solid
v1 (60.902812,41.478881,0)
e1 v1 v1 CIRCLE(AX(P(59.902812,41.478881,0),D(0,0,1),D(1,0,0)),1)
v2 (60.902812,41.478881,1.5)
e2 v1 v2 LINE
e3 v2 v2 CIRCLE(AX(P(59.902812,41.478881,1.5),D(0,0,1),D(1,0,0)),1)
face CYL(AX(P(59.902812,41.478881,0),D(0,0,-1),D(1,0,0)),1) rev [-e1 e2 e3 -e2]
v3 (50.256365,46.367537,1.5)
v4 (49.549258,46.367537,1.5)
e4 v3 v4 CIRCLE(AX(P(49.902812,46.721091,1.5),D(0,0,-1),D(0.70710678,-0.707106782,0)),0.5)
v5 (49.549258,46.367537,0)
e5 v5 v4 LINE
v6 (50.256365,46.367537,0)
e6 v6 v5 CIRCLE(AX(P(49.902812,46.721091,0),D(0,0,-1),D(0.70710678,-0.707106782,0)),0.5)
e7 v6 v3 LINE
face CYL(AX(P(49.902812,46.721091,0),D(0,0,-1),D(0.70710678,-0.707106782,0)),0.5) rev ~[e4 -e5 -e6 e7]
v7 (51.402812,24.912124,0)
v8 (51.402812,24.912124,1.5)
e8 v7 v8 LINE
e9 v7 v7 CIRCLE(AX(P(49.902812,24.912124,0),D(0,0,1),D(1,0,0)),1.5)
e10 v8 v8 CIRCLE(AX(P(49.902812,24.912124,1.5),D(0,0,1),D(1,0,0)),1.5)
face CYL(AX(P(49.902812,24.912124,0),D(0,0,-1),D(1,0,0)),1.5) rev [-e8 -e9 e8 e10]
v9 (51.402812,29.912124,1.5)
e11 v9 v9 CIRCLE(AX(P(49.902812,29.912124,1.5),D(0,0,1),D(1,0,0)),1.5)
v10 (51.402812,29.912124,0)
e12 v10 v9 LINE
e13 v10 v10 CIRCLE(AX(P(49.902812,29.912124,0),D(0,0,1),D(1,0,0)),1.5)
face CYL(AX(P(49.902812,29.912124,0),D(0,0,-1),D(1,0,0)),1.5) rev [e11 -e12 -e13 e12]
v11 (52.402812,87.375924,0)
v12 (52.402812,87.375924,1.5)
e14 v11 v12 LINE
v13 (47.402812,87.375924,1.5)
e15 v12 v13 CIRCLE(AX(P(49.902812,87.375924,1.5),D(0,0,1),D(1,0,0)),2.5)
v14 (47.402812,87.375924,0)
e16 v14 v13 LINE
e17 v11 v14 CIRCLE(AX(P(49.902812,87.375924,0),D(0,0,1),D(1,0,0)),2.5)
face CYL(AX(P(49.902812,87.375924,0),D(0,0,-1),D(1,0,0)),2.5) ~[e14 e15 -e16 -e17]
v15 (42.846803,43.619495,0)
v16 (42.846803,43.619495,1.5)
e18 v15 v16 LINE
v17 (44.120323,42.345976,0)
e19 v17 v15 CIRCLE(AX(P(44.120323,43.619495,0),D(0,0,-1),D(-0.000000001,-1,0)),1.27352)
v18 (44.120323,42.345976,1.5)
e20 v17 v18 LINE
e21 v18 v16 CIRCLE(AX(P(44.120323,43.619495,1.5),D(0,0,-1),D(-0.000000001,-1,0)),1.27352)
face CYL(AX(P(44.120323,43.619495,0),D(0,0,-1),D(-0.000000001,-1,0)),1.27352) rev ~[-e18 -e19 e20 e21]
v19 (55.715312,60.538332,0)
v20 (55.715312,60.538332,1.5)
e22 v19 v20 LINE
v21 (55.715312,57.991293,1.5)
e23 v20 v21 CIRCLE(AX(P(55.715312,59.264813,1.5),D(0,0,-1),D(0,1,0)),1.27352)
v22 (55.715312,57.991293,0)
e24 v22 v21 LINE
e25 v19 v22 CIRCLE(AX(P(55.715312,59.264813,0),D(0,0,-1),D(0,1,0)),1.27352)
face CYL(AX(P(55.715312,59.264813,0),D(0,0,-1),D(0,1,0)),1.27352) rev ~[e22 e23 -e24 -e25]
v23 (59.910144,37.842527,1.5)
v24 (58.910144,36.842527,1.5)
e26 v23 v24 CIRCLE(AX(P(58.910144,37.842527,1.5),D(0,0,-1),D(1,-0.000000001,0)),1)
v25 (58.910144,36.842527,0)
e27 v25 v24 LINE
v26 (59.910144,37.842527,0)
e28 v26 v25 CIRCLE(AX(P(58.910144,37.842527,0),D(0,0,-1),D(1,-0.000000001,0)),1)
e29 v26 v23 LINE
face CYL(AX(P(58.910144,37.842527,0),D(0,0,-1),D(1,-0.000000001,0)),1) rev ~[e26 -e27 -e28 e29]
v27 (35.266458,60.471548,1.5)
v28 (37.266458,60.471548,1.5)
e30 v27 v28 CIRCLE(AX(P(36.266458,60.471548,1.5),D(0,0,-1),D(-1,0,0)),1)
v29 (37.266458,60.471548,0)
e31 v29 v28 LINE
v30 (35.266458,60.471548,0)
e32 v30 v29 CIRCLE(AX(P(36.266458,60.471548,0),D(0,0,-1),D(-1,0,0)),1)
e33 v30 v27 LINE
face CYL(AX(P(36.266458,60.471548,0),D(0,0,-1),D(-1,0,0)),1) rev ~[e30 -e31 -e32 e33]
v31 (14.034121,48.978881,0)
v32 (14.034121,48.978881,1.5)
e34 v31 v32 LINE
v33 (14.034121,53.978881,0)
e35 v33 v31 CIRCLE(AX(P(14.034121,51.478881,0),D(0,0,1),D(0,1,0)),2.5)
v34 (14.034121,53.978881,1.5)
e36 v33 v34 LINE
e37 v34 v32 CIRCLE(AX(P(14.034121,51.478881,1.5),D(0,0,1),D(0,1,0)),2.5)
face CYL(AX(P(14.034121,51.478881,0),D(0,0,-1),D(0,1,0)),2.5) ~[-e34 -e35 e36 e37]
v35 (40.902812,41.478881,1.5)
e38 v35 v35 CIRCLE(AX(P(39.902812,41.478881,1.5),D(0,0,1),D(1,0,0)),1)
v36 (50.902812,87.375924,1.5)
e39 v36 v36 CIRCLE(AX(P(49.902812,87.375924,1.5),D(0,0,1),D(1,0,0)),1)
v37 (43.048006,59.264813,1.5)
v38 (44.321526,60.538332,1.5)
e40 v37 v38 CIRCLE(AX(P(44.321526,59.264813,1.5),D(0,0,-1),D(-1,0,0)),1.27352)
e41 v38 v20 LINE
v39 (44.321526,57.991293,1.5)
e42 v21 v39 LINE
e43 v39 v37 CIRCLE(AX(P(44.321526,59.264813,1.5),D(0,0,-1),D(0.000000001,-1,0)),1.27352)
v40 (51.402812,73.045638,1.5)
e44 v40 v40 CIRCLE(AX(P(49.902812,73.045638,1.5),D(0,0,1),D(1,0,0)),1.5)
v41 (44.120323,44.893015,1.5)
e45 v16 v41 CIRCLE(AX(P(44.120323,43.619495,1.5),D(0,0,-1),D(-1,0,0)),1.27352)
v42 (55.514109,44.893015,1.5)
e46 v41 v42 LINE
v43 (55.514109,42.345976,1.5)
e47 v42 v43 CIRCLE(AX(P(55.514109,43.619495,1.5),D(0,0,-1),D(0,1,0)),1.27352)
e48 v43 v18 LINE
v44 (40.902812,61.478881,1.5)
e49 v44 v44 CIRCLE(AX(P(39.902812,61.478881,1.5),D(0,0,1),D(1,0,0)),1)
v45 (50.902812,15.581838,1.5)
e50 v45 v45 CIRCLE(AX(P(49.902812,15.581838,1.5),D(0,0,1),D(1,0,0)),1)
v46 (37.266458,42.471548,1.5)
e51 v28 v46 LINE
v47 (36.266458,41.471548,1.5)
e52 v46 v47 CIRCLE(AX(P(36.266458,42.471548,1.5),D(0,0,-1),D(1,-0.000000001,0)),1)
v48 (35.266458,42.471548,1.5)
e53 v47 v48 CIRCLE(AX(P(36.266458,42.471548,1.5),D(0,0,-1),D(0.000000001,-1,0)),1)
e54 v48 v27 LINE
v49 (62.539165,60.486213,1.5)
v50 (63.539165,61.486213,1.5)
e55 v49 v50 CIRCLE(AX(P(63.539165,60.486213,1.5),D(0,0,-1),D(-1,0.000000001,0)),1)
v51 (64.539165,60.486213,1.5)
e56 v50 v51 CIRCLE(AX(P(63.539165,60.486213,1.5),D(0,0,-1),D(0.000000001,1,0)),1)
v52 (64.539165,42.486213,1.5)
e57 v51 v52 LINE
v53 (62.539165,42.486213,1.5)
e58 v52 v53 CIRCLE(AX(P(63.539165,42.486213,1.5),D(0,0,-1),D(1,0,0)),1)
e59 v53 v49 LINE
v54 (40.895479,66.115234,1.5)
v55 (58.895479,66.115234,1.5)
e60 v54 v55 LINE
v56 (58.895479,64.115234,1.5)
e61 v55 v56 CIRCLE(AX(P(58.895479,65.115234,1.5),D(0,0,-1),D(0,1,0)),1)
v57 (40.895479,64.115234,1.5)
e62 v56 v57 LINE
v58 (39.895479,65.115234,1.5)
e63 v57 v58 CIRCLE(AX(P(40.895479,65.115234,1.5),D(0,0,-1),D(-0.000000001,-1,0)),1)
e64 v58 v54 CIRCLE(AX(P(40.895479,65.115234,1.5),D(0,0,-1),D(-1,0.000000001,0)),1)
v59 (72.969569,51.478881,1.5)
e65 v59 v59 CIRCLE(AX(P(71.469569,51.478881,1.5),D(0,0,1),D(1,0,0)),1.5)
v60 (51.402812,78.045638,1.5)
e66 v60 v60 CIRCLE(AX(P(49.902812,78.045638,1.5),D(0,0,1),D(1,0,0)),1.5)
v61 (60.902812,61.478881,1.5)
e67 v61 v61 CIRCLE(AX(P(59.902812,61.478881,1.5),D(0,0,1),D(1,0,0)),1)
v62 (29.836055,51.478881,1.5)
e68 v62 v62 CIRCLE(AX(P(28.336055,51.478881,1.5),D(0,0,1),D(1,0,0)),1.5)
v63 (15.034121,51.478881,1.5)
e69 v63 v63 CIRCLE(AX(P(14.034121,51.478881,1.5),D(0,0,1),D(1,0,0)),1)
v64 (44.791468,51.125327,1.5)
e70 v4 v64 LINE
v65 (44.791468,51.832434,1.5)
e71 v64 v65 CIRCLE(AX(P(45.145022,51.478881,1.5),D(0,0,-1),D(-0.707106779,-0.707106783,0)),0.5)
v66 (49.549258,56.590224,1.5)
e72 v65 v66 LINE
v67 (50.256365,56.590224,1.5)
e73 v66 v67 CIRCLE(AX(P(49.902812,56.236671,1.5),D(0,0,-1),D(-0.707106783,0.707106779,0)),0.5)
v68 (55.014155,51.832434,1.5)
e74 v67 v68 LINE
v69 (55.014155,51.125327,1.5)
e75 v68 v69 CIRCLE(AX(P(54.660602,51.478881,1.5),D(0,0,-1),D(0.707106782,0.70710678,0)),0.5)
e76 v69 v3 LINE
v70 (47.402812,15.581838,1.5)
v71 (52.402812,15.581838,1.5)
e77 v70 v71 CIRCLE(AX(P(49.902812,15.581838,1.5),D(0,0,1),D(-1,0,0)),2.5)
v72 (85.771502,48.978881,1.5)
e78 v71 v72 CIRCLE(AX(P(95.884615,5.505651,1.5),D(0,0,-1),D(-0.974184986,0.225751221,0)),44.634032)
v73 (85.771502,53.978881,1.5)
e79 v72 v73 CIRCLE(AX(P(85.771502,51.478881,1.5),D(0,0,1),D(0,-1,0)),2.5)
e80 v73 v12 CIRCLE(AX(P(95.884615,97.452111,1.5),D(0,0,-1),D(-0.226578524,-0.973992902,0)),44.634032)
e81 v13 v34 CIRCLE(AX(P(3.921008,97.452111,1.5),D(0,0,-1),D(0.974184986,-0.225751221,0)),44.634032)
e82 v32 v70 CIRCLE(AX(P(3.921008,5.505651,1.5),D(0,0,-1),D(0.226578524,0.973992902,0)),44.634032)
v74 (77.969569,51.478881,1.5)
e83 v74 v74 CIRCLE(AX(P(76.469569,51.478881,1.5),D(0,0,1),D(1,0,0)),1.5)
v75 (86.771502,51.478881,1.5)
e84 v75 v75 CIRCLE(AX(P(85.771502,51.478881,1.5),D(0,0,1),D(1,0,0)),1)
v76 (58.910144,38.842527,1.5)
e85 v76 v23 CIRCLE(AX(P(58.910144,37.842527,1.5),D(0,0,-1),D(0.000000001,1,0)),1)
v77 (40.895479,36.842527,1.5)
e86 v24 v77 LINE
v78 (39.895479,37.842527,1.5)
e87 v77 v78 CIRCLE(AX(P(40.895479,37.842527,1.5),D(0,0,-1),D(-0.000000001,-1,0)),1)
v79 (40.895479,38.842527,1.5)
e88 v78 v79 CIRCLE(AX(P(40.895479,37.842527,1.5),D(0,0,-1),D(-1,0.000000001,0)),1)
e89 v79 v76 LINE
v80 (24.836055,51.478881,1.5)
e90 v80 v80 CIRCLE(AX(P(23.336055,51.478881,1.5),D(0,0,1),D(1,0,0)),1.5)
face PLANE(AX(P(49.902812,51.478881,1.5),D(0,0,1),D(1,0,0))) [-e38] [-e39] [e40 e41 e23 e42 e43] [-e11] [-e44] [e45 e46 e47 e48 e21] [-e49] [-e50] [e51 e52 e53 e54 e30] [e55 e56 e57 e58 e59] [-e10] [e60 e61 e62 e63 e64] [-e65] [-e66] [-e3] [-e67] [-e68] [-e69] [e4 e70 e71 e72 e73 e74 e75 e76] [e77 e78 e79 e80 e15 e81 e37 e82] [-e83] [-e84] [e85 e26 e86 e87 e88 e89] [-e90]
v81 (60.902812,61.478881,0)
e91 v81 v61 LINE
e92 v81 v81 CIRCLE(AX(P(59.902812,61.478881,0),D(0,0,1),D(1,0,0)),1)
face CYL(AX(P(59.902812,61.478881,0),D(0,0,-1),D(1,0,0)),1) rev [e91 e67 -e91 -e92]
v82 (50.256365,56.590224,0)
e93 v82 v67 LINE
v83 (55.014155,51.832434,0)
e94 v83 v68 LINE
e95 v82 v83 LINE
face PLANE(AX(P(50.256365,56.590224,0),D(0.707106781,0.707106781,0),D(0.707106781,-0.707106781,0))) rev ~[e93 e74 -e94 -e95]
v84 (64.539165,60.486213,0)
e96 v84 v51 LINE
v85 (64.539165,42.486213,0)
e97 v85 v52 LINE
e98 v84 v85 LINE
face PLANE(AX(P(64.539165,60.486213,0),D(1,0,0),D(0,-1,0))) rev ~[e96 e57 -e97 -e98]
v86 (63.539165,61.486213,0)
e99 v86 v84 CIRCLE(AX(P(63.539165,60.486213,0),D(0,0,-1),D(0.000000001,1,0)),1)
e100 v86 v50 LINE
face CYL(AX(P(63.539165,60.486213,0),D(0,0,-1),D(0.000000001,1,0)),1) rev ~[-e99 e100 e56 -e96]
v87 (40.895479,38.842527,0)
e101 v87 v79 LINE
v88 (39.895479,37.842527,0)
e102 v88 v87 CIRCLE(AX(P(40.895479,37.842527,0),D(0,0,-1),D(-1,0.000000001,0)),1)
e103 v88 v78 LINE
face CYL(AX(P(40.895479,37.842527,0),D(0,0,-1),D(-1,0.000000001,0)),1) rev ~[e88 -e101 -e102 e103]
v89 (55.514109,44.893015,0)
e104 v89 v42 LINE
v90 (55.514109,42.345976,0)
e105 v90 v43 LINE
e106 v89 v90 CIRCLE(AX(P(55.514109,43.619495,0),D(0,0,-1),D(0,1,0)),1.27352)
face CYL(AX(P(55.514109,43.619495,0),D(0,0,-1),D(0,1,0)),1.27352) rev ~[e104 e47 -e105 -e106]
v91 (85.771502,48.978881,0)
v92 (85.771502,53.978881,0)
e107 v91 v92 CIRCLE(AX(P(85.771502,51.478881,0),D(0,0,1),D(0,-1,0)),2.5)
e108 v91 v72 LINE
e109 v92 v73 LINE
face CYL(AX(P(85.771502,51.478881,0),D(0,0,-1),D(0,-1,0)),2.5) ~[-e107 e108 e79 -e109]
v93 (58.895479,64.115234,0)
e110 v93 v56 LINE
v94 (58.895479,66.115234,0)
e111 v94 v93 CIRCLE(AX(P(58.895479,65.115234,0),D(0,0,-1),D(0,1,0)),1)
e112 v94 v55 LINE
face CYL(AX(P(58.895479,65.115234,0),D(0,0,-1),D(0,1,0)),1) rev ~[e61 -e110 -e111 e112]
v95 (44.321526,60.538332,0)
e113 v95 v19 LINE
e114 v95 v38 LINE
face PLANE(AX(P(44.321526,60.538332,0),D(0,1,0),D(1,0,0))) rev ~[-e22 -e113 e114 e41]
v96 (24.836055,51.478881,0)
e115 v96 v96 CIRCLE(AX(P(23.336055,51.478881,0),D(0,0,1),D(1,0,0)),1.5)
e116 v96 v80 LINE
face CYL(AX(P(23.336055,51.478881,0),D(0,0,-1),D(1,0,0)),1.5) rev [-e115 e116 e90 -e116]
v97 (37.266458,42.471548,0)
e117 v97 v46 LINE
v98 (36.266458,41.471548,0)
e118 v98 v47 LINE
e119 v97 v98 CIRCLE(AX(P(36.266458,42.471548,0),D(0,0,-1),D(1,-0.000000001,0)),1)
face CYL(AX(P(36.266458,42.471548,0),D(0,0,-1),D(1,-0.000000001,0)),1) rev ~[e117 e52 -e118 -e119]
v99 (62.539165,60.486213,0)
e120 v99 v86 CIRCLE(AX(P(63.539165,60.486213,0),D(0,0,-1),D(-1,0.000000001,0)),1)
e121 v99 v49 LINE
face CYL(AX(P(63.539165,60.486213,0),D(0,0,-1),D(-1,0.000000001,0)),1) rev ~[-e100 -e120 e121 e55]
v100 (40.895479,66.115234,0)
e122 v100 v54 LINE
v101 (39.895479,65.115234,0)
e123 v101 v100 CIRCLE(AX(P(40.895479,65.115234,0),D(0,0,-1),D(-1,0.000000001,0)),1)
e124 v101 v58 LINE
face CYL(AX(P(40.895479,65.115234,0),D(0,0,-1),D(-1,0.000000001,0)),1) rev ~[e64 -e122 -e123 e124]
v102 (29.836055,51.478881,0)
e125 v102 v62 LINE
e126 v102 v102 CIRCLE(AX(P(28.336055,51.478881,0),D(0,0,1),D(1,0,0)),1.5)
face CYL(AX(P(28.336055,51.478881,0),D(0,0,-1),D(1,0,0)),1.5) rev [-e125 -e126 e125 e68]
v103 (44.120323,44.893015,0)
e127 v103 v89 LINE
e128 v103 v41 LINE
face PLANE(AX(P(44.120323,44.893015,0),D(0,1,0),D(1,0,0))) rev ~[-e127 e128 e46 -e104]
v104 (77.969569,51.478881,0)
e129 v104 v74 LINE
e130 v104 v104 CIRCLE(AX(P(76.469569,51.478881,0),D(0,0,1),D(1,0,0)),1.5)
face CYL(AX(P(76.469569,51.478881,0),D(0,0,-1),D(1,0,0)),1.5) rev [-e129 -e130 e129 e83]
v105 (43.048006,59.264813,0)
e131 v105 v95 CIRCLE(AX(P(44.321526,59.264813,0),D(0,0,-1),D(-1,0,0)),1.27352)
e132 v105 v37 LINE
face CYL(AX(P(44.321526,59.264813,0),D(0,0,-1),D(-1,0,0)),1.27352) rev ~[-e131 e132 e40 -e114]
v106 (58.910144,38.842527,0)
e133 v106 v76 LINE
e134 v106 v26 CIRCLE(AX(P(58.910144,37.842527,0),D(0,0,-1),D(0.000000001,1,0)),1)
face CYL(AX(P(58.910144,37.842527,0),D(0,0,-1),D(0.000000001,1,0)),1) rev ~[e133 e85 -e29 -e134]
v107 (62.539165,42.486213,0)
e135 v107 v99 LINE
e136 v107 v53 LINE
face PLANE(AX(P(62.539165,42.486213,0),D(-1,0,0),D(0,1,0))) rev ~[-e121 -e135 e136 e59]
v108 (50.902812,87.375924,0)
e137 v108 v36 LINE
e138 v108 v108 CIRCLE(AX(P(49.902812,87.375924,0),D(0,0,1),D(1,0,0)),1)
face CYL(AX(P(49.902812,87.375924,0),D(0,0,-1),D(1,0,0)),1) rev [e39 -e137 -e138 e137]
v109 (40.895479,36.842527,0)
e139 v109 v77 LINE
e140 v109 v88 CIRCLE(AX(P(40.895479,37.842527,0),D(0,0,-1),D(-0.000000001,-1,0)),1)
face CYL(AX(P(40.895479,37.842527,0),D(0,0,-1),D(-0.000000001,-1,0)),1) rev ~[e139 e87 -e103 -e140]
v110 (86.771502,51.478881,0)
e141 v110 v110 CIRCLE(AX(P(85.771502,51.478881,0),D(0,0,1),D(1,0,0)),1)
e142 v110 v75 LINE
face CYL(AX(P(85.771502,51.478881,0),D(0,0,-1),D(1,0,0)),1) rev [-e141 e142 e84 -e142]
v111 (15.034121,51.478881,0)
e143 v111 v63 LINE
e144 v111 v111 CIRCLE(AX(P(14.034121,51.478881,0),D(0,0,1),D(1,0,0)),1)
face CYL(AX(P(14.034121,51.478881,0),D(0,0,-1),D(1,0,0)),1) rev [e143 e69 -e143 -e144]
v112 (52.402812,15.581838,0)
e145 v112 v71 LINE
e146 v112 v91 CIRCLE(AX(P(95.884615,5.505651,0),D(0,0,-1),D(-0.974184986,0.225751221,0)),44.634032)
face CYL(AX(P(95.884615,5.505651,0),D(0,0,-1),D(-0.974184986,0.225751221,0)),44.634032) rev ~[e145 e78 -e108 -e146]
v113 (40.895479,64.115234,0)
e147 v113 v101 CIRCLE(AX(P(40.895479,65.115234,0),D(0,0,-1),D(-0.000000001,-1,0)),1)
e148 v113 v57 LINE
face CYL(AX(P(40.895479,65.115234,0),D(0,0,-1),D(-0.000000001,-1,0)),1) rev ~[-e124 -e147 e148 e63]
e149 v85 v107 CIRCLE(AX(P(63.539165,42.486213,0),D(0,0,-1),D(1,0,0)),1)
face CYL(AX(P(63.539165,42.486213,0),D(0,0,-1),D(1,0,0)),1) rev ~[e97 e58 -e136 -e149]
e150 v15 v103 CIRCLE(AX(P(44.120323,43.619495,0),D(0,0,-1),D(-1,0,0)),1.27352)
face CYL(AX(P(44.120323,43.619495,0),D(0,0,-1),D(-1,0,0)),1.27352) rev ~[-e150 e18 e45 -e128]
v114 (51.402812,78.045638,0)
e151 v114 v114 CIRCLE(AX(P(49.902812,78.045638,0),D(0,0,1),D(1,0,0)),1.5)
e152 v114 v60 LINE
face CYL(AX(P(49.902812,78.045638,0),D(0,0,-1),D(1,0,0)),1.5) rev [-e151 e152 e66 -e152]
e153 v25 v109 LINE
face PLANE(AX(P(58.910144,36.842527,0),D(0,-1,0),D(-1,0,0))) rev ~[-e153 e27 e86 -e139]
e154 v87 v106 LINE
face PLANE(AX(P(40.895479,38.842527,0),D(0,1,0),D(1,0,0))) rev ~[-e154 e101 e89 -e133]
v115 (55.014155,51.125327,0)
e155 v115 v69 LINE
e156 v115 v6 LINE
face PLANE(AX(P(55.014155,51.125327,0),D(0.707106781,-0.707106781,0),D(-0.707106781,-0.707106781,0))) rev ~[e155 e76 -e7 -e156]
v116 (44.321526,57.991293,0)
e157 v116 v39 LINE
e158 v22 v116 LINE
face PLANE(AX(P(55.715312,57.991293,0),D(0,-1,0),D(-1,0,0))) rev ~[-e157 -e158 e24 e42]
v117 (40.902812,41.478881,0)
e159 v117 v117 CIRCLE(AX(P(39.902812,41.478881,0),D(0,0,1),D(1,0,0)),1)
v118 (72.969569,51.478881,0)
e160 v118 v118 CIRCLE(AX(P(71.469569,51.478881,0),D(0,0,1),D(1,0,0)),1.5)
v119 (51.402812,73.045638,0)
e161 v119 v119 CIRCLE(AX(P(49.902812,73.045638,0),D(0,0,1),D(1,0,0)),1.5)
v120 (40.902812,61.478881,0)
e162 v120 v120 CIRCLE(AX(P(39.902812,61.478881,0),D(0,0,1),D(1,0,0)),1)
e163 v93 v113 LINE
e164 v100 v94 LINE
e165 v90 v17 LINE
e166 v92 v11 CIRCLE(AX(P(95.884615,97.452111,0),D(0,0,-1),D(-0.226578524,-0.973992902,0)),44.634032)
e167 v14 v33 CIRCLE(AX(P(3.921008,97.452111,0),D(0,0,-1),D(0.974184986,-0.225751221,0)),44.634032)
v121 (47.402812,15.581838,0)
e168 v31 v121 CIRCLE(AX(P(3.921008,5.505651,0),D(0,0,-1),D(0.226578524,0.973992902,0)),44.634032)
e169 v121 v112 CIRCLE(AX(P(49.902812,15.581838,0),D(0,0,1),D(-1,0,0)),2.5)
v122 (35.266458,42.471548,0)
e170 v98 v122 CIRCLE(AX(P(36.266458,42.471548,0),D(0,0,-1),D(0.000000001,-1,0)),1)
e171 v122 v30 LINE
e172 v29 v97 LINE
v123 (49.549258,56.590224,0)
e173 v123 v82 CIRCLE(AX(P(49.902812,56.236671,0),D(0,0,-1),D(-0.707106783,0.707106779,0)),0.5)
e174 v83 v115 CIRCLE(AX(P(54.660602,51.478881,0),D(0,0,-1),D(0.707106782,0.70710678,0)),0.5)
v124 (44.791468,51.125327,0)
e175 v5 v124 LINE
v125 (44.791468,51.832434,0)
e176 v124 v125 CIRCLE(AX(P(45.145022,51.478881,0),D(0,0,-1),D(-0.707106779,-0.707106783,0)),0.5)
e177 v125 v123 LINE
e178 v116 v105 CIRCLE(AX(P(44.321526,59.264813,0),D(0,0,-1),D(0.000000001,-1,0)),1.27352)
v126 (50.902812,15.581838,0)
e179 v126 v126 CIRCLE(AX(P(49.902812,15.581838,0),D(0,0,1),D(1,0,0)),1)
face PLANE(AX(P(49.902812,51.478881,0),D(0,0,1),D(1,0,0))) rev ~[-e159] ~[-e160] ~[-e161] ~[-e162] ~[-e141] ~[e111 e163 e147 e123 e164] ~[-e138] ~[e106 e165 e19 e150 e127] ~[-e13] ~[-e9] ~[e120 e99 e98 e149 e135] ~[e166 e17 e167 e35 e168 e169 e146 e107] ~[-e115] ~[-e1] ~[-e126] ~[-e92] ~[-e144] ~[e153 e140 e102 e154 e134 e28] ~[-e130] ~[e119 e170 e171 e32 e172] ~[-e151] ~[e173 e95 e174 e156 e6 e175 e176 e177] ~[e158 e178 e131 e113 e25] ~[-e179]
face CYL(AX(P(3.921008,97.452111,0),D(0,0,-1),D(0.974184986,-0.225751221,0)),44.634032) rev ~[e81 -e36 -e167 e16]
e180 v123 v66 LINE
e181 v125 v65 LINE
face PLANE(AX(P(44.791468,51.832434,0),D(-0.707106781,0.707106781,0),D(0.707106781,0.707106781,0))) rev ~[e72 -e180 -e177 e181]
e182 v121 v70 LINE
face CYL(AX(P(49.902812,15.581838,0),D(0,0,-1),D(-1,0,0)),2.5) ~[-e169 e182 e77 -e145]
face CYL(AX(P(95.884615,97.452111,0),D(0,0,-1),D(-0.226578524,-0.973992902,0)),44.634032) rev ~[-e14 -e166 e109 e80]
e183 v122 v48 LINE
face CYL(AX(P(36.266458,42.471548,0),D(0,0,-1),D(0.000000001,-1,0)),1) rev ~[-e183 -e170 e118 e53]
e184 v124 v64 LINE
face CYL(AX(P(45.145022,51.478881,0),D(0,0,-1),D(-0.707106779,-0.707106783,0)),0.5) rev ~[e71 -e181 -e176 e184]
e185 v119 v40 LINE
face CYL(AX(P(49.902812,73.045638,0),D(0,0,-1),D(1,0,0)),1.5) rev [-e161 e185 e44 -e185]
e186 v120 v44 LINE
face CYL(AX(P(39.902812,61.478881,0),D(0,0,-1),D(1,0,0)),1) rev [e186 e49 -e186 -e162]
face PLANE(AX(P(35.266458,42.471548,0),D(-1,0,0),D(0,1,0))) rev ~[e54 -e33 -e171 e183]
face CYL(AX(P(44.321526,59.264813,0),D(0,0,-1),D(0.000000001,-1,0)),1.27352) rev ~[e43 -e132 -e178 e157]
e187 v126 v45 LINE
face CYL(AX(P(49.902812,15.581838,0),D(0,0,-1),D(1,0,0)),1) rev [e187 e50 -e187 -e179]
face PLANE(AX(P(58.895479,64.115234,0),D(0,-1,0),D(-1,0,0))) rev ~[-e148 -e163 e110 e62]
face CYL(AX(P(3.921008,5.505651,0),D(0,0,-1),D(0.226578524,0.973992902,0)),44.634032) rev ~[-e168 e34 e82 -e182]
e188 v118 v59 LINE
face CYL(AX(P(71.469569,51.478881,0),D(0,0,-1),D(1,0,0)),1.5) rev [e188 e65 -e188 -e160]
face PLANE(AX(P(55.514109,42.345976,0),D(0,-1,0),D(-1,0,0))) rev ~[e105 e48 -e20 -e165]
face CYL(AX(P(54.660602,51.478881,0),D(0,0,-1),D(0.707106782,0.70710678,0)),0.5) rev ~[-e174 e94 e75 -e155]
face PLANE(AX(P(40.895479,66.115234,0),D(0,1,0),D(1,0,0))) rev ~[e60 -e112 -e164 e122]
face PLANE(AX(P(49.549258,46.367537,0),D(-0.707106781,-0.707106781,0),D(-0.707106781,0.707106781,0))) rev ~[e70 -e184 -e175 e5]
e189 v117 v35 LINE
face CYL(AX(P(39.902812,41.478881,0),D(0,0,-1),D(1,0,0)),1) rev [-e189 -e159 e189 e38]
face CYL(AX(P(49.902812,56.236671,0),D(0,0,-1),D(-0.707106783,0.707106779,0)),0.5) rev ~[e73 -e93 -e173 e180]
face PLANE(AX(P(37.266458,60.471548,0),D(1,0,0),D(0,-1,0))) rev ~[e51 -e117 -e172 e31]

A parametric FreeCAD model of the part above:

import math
import FreeCAD as App
import Part
import Sketcher
from FreeCAD import Vector
Q = App.Units.Quantity

doc = App.newDocument("Part")
body = doc.addObject("PartDesign::Body", "Body")

sketch1 = doc.addObject("Sketcher::SketchObject", "Sketch")
body.addObject(sketch1)
sketch1.AttachmentSupport = (doc.XY_Plane, [""])
sketch1.MapMode = "FlatFace"
sketch1.addGeometry(Part.ArcOfCircle(Part.Circle(Vector(95.884615, 5.505651, 0), Vector(0, 0, 1), 44.634032), math.radians(103.095718), math.radians(166.952943)), False)
sketch1.addGeometry(Part.ArcOfCircle(Part.Circle(Vector(85.771502, 51.478881, 0), Vector(0, 0, 1), 2.5), math.radians(-90), math.radians(90)), False)
sketch1.addGeometry(Part.ArcOfCircle(Part.Circle(Vector(95.884615, 97.452111, 0), Vector(0, 0, 1), 44.634032), math.radians(-166.952943), math.radians(-103.095718)), False)
sketch1.addGeometry(Part.ArcOfCircle(Part.Circle(Vector(49.902812, 87.375924, 0), Vector(0, 0, 1), 2.5), math.radians(0), math.radians(180)), False)
sketch1.addGeometry(Part.ArcOfCircle(Part.Circle(Vector(3.921008, 97.452111, 0), Vector(0, 0, 1), 44.634032), math.radians(-76.904282), math.radians(-13.047057)), False)
sketch1.addGeometry(Part.ArcOfCircle(Part.Circle(Vector(14.034121, 51.478881, 0), Vector(0, 0, 1), 2.5), math.radians(90), math.radians(270)), False)
sketch1.addGeometry(Part.ArcOfCircle(Part.Circle(Vector(3.921008, 5.505651, 0), Vector(0, 0, 1), 44.634032), math.radians(13.047057), math.radians(76.904282)), False)
sketch1.addGeometry(Part.ArcOfCircle(Part.Circle(Vector(49.902812, 15.581838, 0), Vector(0, 0, 1), 2.5), math.radians(180), math.radians(360)), False)
sketch1.addGeometry(Part.Circle(Vector(39.902812, 41.478881, 0), Vector(0, 0, 1), 1), False)
sketch1.addGeometry(Part.ArcOfCircle(Part.Circle(Vector(36.266458, 60.471548, 0), Vector(0, 0, 1), 1), math.radians(0), math.radians(180)), False)
sketch1.addGeometry(Part.LineSegment(Vector(37.266458, 60.471548, 0), Vector(37.266458, 42.471548, 0)), False)
sketch1.addGeometry(Part.ArcOfCircle(Part.Circle(Vector(36.266458, 42.471548, 0), Vector(0, 0, 1), 1), math.radians(-90), math.radians(0)), False)
sketch1.addGeometry(Part.ArcOfCircle(Part.Circle(Vector(36.266458, 42.471548, 0), Vector(0, 0, 1), 1), math.radians(180), math.radians(270)), False)
sketch1.addGeometry(Part.LineSegment(Vector(35.266458, 42.471548, 0), Vector(35.266458, 60.471548, 0)), False)
sketch1.addGeometry(Part.LineSegment(Vector(44.120323, 44.893015, 0), Vector(55.514109, 44.893015, 0)), False)
sketch1.addGeometry(Part.ArcOfCircle(Part.Circle(Vector(55.514109, 43.619495, 0), Vector(0, 0, 1), 1.27352), math.radians(-90), math.radians(90)), False)
sketch1.addGeometry(Part.LineSegment(Vector(55.514109, 42.345976, 0), Vector(44.120323, 42.345976, 0)), False)
sketch1.addGeometry(Part.ArcOfCircle(Part.Circle(Vector(44.120323, 43.619495, 0), Vector(0, 0, 1), 1.27352), math.radians(-180), math.radians(-90)), False)
sketch1.addGeometry(Part.ArcOfCircle(Part.Circle(Vector(44.120323, 43.619495, 0), Vector(0, 0, 1), 1.27352), math.radians(90), math.radians(180)), False)
sketch1.addGeometry(Part.Circle(Vector(49.902812, 15.581838, 0), Vector(0, 0, 1), 1), False)
sketch1.addGeometry(Part.Circle(Vector(49.902812, 24.912124, 0), Vector(0, 0, 1), 1.5), False)
sketch1.addGeometry(Part.Circle(Vector(49.902812, 29.912124, 0), Vector(0, 0, 1), 1.5), False)
sketch1.addGeometry(Part.LineSegment(Vector(40.895479, 38.842527, 0), Vector(58.910144, 38.842527, 0)), False)
sketch1.addGeometry(Part.ArcOfCircle(Part.Circle(Vector(58.910144, 37.842527, 0), Vector(0, 0, 1), 1), math.radians(0), math.radians(90)), False)
sketch1.addGeometry(Part.ArcOfCircle(Part.Circle(Vector(58.910144, 37.842527, 0), Vector(0, 0, 1), 1), math.radians(-90), math.radians(0)), False)
sketch1.addGeometry(Part.LineSegment(Vector(58.910144, 36.842527, 0), Vector(40.895479, 36.842527, 0)), False)
sketch1.addGeometry(Part.ArcOfCircle(Part.Circle(Vector(40.895479, 37.842527, 0), Vector(0, 0, 1), 1), math.radians(-180), math.radians(-90)), False)
sketch1.addGeometry(Part.ArcOfCircle(Part.Circle(Vector(40.895479, 37.842527, 0), Vector(0, 0, 1), 1), math.radians(90), math.radians(180)), False)
sketch1.addGeometry(Part.Circle(Vector(59.902812, 41.478881, 0), Vector(0, 0, 1), 1), False)
sketch1.addGeometry(Part.Circle(Vector(14.034121, 51.478881, 0), Vector(0, 0, 1), 1), False)
sketch1.addGeometry(Part.Circle(Vector(23.336055, 51.478881, 0), Vector(0, 0, 1), 1.5), False)
sketch1.addGeometry(Part.Circle(Vector(28.336055, 51.478881, 0), Vector(0, 0, 1), 1.5), False)
sketch1.addGeometry(Part.Circle(Vector(39.902812, 61.478881, 0), Vector(0, 0, 1), 1), False)
sketch1.addGeometry(Part.ArcOfCircle(Part.Circle(Vector(58.895479, 65.115234, 0), Vector(0, 0, 1), 1), math.radians(-90), math.radians(90)), False)
sketch1.addGeometry(Part.LineSegment(Vector(58.895479, 64.115234, 0), Vector(40.895479, 64.115234, 0)), False)
sketch1.addGeometry(Part.ArcOfCircle(Part.Circle(Vector(40.895479, 65.115234, 0), Vector(0, 0, 1), 1), math.radians(-180), math.radians(-90)), False)
sketch1.addGeometry(Part.ArcOfCircle(Part.Circle(Vector(40.895479, 65.115234, 0), Vector(0, 0, 1), 1), math.radians(90), math.radians(180)), False)
sketch1.addGeometry(Part.LineSegment(Vector(40.895479, 66.115234, 0), Vector(58.895479, 66.115234, 0)), False)
sketch1.addGeometry(Part.ArcOfCircle(Part.Circle(Vector(49.902812, 56.236671, 0), Vector(0, 0, 1), 0.5), math.radians(45), math.radians(135)), False)
sketch1.addGeometry(Part.LineSegment(Vector(50.256365, 56.590224, 0), Vector(55.014155, 51.832434, 0)), False)
sketch1.addGeometry(Part.ArcOfCircle(Part.Circle(Vector(54.660602, 51.478881, 0), Vector(0, 0, 1), 0.5), math.radians(-45), math.radians(45)), False)
sketch1.addGeometry(Part.LineSegment(Vector(55.014155, 51.125327, 0), Vector(50.256365, 46.367537, 0)), False)
sketch1.addGeometry(Part.ArcOfCircle(Part.Circle(Vector(49.902812, 46.721091, 0), Vector(0, 0, 1), 0.5), math.radians(-135), math.radians(-45)), False)
sketch1.addGeometry(Part.LineSegment(Vector(49.549258, 46.367537, 0), Vector(44.791468, 51.125327, 0)), False)
sketch1.addGeometry(Part.ArcOfCircle(Part.Circle(Vector(45.145022, 51.478881, 0), Vector(0, 0, 1), 0.5), math.radians(135), math.radians(225)), False)
sketch1.addGeometry(Part.LineSegment(Vector(44.791468, 51.832434, 0), Vector(49.549258, 56.590224, 0)), False)
sketch1.addGeometry(Part.ArcOfCircle(Part.Circle(Vector(44.321526, 59.264813, 0), Vector(0, 0, 1), 1.27352), math.radians(90), math.radians(180)), False)
sketch1.addGeometry(Part.LineSegment(Vector(44.321526, 60.538332, 0), Vector(55.715312, 60.538332, 0)), False)
sketch1.addGeometry(Part.ArcOfCircle(Part.Circle(Vector(55.715312, 59.264813, 0), Vector(0, 0, 1), 1.27352), math.radians(-90), math.radians(90)), False)
sketch1.addGeometry(Part.LineSegment(Vector(55.715312, 57.991293, 0), Vector(44.321526, 57.991293, 0)), False)
sketch1.addGeometry(Part.ArcOfCircle(Part.Circle(Vector(44.321526, 59.264813, 0), Vector(0, 0, 1), 1.27352), math.radians(180), math.radians(270)), False)
sketch1.addGeometry(Part.ArcOfCircle(Part.Circle(Vector(63.539165, 42.486213, 0), Vector(0, 0, 1), 1), math.radians(180), math.radians(360)), False)
sketch1.addGeometry(Part.LineSegment(Vector(62.539165, 42.486213, 0), Vector(62.539165, 60.486213, 0)), False)
sketch1.addGeometry(Part.ArcOfCircle(Part.Circle(Vector(63.539165, 60.486213, 0), Vector(0, 0, 1), 1), math.radians(90), math.radians(180)), False)
sketch1.addGeometry(Part.ArcOfCircle(Part.Circle(Vector(63.539165, 60.486213, 0), Vector(0, 0, 1), 1), math.radians(0), math.radians(90)), False)
sketch1.addGeometry(Part.LineSegment(Vector(64.539165, 60.486213, 0), Vector(64.539165, 42.486213, 0)), False)
sketch1.addGeometry(Part.Circle(Vector(59.902812, 61.478881, 0), Vector(0, 0, 1), 1), False)
sketch1.addGeometry(Part.Circle(Vector(71.469569, 51.478881, 0), Vector(0, 0, 1), 1.5), False)
sketch1.addGeometry(Part.Circle(Vector(76.469569, 51.478881, 0), Vector(0, 0, 1), 1.5), False)
sketch1.addGeometry(Part.Circle(Vector(85.771502, 51.478881, 0), Vector(0, 0, 1), 1), False)
sketch1.addGeometry(Part.Circle(Vector(49.902812, 73.045638, 0), Vector(0, 0, 1), 1.5), False)
sketch1.addGeometry(Part.Circle(Vector(49.902812, 78.045638, 0), Vector(0, 0, 1), 1.5), False)
sketch1.addGeometry(Part.Circle(Vector(49.902812, 87.375924, 0), Vector(0, 0, 1), 1), False)
sketch1.addConstraint(Sketcher.Constraint("Coincident", 0, 1, 1, 1))
sketch1.addConstraint(Sketcher.Constraint("Coincident", 1, 2, 2, 2))
sketch1.addConstraint(Sketcher.Constraint("Coincident", 2, 1, 3, 1))
sketch1.addConstraint(Sketcher.Constraint("Coincident", 3, 2, 4, 2))
sketch1.addConstraint(Sketcher.Constraint("Coincident", 4, 1, 5, 1))
sketch1.addConstraint(Sketcher.Constraint("Coincident", 5, 2, 6, 2))
sketch1.addConstraint(Sketcher.Constraint("Coincident", 6, 1, 7, 1))
sketch1.addConstraint(Sketcher.Constraint("Coincident", 7, 2, 0, 2))
sketch1.addConstraint(Sketcher.Constraint("Tangent", 9, 1, 10, 1))
sketch1.addConstraint(Sketcher.Constraint("Tangent", 10, 2, 11, 2))
sketch1.addConstraint(Sketcher.Constraint("Tangent", 11, 1, 12, 2))
sketch1.addConstraint(Sketcher.Constraint("Tangent", 12, 1, 13, 1))
sketch1.addConstraint(Sketcher.Constraint("Tangent", 13, 2, 9, 2))
sketch1.addConstraint(Sketcher.Constraint("Tangent", 14, 2, 15, 2))
sketch1.addConstraint(Sketcher.Constraint("Tangent", 15, 1, 16, 1))
sketch1.addConstraint(Sketcher.Constraint("Tangent", 16, 2, 17, 2))
sketch1.addConstraint(Sketcher.Constraint("Tangent", 17, 1, 18, 2))
sketch1.addConstraint(Sketcher.Constraint("Tangent", 18, 1, 14, 1))
sketch1.addConstraint(Sketcher.Constraint("Tangent", 22, 2, 23, 2))
sketch1.addConstraint(Sketcher.Constraint("Tangent", 23, 1, 24, 2))
sketch1.addConstraint(Sketcher.Constraint("Tangent", 24, 1, 25, 1))
sketch1.addConstraint(Sketcher.Constraint("Tangent", 25, 2, 26, 2))
sketch1.addConstraint(Sketcher.Constraint("Tangent", 26, 1, 27, 2))
sketch1.addConstraint(Sketcher.Constraint("Tangent", 27, 1, 22, 1))
sketch1.addConstraint(Sketcher.Constraint("Tangent", 33, 1, 34, 1))
sketch1.addConstraint(Sketcher.Constraint("Tangent", 34, 2, 35, 2))
sketch1.addConstraint(Sketcher.Constraint("Tangent", 35, 1, 36, 2))
sketch1.addConstraint(Sketcher.Constraint("Tangent", 36, 1, 37, 1))
sketch1.addConstraint(Sketcher.Constraint("Tangent", 37, 2, 33, 2))
sketch1.addConstraint(Sketcher.Constraint("Tangent", 38, 1, 39, 1))
sketch1.addConstraint(Sketcher.Constraint("Tangent", 39, 2, 40, 2))
sketch1.addConstraint(Sketcher.Constraint("Tangent", 40, 1, 41, 1))
sketch1.addConstraint(Sketcher.Constraint("Tangent", 41, 2, 42, 2))
sketch1.addConstraint(Sketcher.Constraint("Tangent", 42, 1, 43, 1))
sketch1.addConstraint(Sketcher.Constraint("Tangent", 43, 2, 44, 2))
sketch1.addConstraint(Sketcher.Constraint("Tangent", 44, 1, 45, 1))
sketch1.addConstraint(Sketcher.Constraint("Tangent", 45, 2, 38, 2))
sketch1.addConstraint(Sketcher.Constraint("Tangent", 46, 1, 47, 1))
sketch1.addConstraint(Sketcher.Constraint("Tangent", 47, 2, 48, 2))
sketch1.addConstraint(Sketcher.Constraint("Tangent", 48, 1, 49, 1))
sketch1.addConstraint(Sketcher.Constraint("Tangent", 49, 2, 50, 2))
sketch1.addConstraint(Sketcher.Constraint("Tangent", 50, 1, 46, 2))
sketch1.addConstraint(Sketcher.Constraint("Tangent", 51, 1, 52, 1))
sketch1.addConstraint(Sketcher.Constraint("Tangent", 52, 2, 53, 2))
sketch1.addConstraint(Sketcher.Constraint("Tangent", 53, 1, 54, 2))
sketch1.addConstraint(Sketcher.Constraint("Tangent", 54, 1, 55, 1))
sketch1.addConstraint(Sketcher.Constraint("Tangent", 55, 2, 51, 2))
sketch1.addConstraint(Sketcher.Constraint("Vertical", 10))
sketch1.addConstraint(Sketcher.Constraint("Vertical", 13))
sketch1.addConstraint(Sketcher.Constraint("Horizontal", 14))
sketch1.addConstraint(Sketcher.Constraint("Horizontal", 16))
sketch1.addConstraint(Sketcher.Constraint("Horizontal", 22))
sketch1.addConstraint(Sketcher.Constraint("Horizontal", 25))
sketch1.addConstraint(Sketcher.Constraint("Horizontal", 34))
sketch1.addConstraint(Sketcher.Constraint("Horizontal", 37))
sketch1.addConstraint(Sketcher.Constraint("Horizontal", 47))
sketch1.addConstraint(Sketcher.Constraint("Horizontal", 49))
sketch1.addConstraint(Sketcher.Constraint("Vertical", 52))
sketch1.addConstraint(Sketcher.Constraint("Vertical", 55))
sketch1.addConstraint(Sketcher.Constraint("Coincident", 19, 3, 7, 3))
sketch1.addConstraint(Sketcher.Constraint("Coincident", 29, 3, 5, 3))
sketch1.addConstraint(Sketcher.Constraint("Coincident", 59, 3, 1, 3))
sketch1.addConstraint(Sketcher.Constraint("Coincident", 62, 3, 3, 3))
sketch1.addConstraint(Sketcher.Constraint("Equal", 0, 2))
sketch1.addConstraint(Sketcher.Constraint("Equal", 1, 3))
sketch1.addConstraint(Sketcher.Constraint("Equal", 2, 4))
sketch1.addConstraint(Sketcher.Constraint("Equal", 3, 5))
sketch1.addConstraint(Sketcher.Constraint("Equal", 4, 6))
sketch1.addConstraint(Sketcher.Constraint("Equal", 5, 7))
sketch1.addConstraint(Sketcher.Constraint("Equal", 8, 9))
sketch1.addConstraint(Sketcher.Constraint("Equal", 9, 11))
sketch1.addConstraint(Sketcher.Constraint("Equal", 15, 17))
sketch1.addConstraint(Sketcher.Constraint("Equal", 12, 19))
sketch1.addConstraint(Sketcher.Constraint("Equal", 20, 21))
sketch1.addConstraint(Sketcher.Constraint("Equal", 19, 23))
sketch1.addConstraint(Sketcher.Constraint("Equal", 23, 24))
sketch1.addConstraint(Sketcher.Constraint("Equal", 24, 26))
sketch1.addConstraint(Sketcher.Constraint("Equal", 27, 28))
sketch1.addConstraint(Sketcher.Constraint("Equal", 28, 29))
sketch1.addConstraint(Sketcher.Constraint("Equal", 21, 30))
sketch1.addConstraint(Sketcher.Constraint("Equal", 30, 31))
sketch1.addConstraint(Sketcher.Constraint("Equal", 29, 32))
sketch1.addConstraint(Sketcher.Constraint("Equal", 32, 33))
sketch1.addConstraint(Sketcher.Constraint("Equal", 33, 35))
sketch1.addConstraint(Sketcher.Constraint("Equal", 38, 40))
sketch1.addConstraint(Sketcher.Constraint("Equal", 40, 42))
sketch1.addConstraint(Sketcher.Constraint("Equal", 42, 44))
sketch1.addConstraint(Sketcher.Constraint("Equal", 18, 46))
sketch1.addConstraint(Sketcher.Constraint("Equal", 46, 48))
sketch1.addConstraint(Sketcher.Constraint("Equal", 36, 51))
sketch1.addConstraint(Sketcher.Constraint("Equal", 51, 53))
sketch1.addConstraint(Sketcher.Constraint("Equal", 54, 56))
sketch1.addConstraint(Sketcher.Constraint("Equal", 31, 57))
sketch1.addConstraint(Sketcher.Constraint("Equal", 57, 58))
sketch1.addConstraint(Sketcher.Constraint("Equal", 56, 59))
sketch1.addConstraint(Sketcher.Constraint("Equal", 58, 60))
sketch1.addConstraint(Sketcher.Constraint("Equal", 60, 61))
sketch1.addConstraint(Sketcher.Constraint("Equal", 59, 62))
sketch1.addConstraint(Sketcher.Constraint("Perpendicular", 39, 41))
sketch1.addConstraint(Sketcher.Constraint("Perpendicular", 41, 43))
sketch1.addConstraint(Sketcher.Constraint("Perpendicular", 43, 45))
sketch1.addConstraint(Sketcher.Constraint("Horizontal", 2, 3, 4, 3))
sketch1.addConstraint(Sketcher.Constraint("Horizontal", 1, 3, 5, 3))
sketch1.addConstraint(Sketcher.Constraint("Horizontal", 0, 3, 6, 3))
sketch1.addConstraint(Sketcher.Constraint("Horizontal", 8, 3, 28, 3))
sketch1.addConstraint(Sketcher.Constraint("Horizontal", 29, 3, 30, 3))
sketch1.addConstraint(Sketcher.Constraint("Horizontal", 30, 3, 31, 3))
sketch1.addConstraint(Sketcher.Constraint("Horizontal", 31, 3, 40, 3))
sketch1.addConstraint(Sketcher.Constraint("Horizontal", 40, 3, 44, 3))
sketch1.addConstraint(Sketcher.Constraint("Horizontal", 32, 3, 56, 3))
sketch1.addConstraint(Sketcher.Constraint("Horizontal", 44, 3, 57, 3))
sketch1.addConstraint(Sketcher.Constraint("Horizontal", 57, 3, 58, 3))
sketch1.addConstraint(Sketcher.Constraint("Horizontal", 62, 3, 2, 1))
sketch1.addConstraint(Sketcher.Constraint("Horizontal", 2, 1, 3, 2))
sketch1.addConstraint(Sketcher.Constraint("Horizontal", 19, 3, 6, 1))
sketch1.addConstraint(Sketcher.Constraint("Horizontal", 6, 1, 7, 2))
sketch1.addConstraint(Sketcher.Constraint("Horizontal", 18, 3, 17, 1))
sketch1.addConstraint(Sketcher.Constraint("Horizontal", 27, 3, 23, 1))
sketch1.addConstraint(Sketcher.Constraint("Horizontal", 23, 1, 26, 1))
sketch1.addConstraint(Sketcher.Constraint("Horizontal", 36, 3, 35, 1))
sketch1.addConstraint(Sketcher.Constraint("Horizontal", 41, 2, 42, 1))
sketch1.addConstraint(Sketcher.Constraint("Horizontal", 48, 3, 50, 1))
sketch1.addConstraint(Sketcher.Constraint("Vertical", 0, 3, 2, 3))
sketch1.addConstraint(Sketcher.Constraint("Vertical", 4, 3, 6, 3))
sketch1.addConstraint(Sketcher.Constraint("Vertical", 19, 3, 20, 3))
sketch1.addConstraint(Sketcher.Constraint("Vertical", 20, 3, 21, 3))
sketch1.addConstraint(Sketcher.Constraint("Vertical", 8, 3, 32, 3))
sketch1.addConstraint(Sketcher.Constraint("Vertical", 27, 3, 35, 3))
sketch1.addConstraint(Sketcher.Constraint("Vertical", 21, 3, 38, 3))
sketch1.addConstraint(Sketcher.Constraint("Vertical", 28, 3, 56, 3))
sketch1.addConstraint(Sketcher.Constraint("Vertical", 42, 3, 60, 3))
sketch1.addConstraint(Sketcher.Constraint("Vertical", 60, 3, 61, 3))
sketch1.addConstraint(Sketcher.Constraint("Vertical", 59, 3, 0, 1))
sketch1.addConstraint(Sketcher.Constraint("Vertical", 0, 1, 1, 2))
sketch1.addConstraint(Sketcher.Constraint("Vertical", 29, 3, 4, 1))
sketch1.addConstraint(Sketcher.Constraint("Vertical", 12, 3, 11, 1))
sketch1.addConstraint(Sketcher.Constraint("Vertical", 54, 3, 53, 1))
sketch1.addConstraint(Sketcher.Constraint("Equal", 16, 47))
sketch1.addConstraint(Sketcher.Constraint("Equal", 37, 10))
sketch1.addConstraint(Sketcher.Constraint("Equal", 13, 52))
sketch1.addConstraint(Sketcher.Constraint("Diameter", 8, Q("2 mm")))
sketch1.addConstraint(Sketcher.Constraint("Diameter", 20, Q("3 mm")))
sketch1.addConstraint(Sketcher.Constraint("Radius", 1, Q("2.5 mm")))
sketch1.addConstraint(Sketcher.Constraint("Radius", 38, Q("0.5 mm")))
sketch1.addConstraint(Sketcher.Constraint("DistanceX", 34, 2, 34, 1, Q("18 mm")))
sketch1.addConstraint(Sketcher.Constraint("Radius", 0, Q("44.634032 mm")))
sketch1.addConstraint(Sketcher.Constraint("Radius", 15, Q("1.27352 mm")))
sketch1.addConstraint(Sketcher.Constraint("DistanceX", -1, 1, 40, 3, Q("54.660602 mm")))
sketch1.addConstraint(Sketcher.Constraint("Distance", 39, Q("6.728531 mm")))
sketch1.addConstraint(Sketcher.Constraint("DistanceX", 14, 1, 14, 2, Q("11.393786 mm")))
sketch1.addConstraint(Sketcher.Constraint("DistanceX", 22, 1, 22, 2, Q("18.014665 mm")))
sketch1.addConstraint(Sketcher.Constraint("DistanceY", -1, 1, 0, 3, Q("5.505651 mm")))
sketch1.addConstraint(Sketcher.Constraint("DistanceY", -1, 1, 1, 3, Q("51.478881 mm")))
sketch1.addConstraint(Sketcher.Constraint("DistanceX", -1, 1, 4, 3, Q("3.921008 mm")))
sketch1.addConstraint(Sketcher.Constraint("DistanceX", -1, 1, 8, 3, Q("39.902812 mm")))
sketch1.addConstraint(Sketcher.Constraint("DistanceY", -1, 1, 8, 3, Q("41.478881 mm")))
sketch1.addConstraint(Sketcher.Constraint("DistanceX", -1, 1, 9, 3, Q("36.266458 mm")))
sketch1.addConstraint(Sketcher.Constraint("DistanceY", -1, 1, 9, 3, Q("60.471548 mm")))
sketch1.addConstraint(Sketcher.Constraint("DistanceX", -1, 1, 15, 3, Q("55.514109 mm")))
sketch1.addConstraint(Sketcher.Constraint("DistanceX", -1, 1, 26, 3, Q("40.895479 mm")))
sketch1.addConstraint(Sketcher.Constraint("DistanceX", -1, 1, 28, 3, Q("59.902812 mm")))
sketch1.addConstraint(Sketcher.Constraint("DistanceY", -1, 1, 32, 3, Q("61.478881 mm")))
sketch1.addConstraint(Sketcher.Constraint("DistanceX", -1, 1, 57, 3, Q("71.469569 mm")))
sketch1.addConstraint(Sketcher.Constraint("DistanceX", -1, 1, 58, 3, Q("76.469569 mm")))
sketch1.addConstraint(Sketcher.Constraint("DistanceY", -1, 1, 15, 3, Q("43.619495 mm")))
sketch1.addConstraint(Sketcher.Constraint("DistanceY", -1, 1, 20, 3, Q("24.912124 mm")))
sketch1.addConstraint(Sketcher.Constraint("DistanceY", -1, 1, 21, 3, Q("29.912124 mm")))
sketch1.addConstraint(Sketcher.Constraint("DistanceY", -1, 1, 23, 3, Q("37.842527 mm")))
sketch1.addConstraint(Sketcher.Constraint("DistanceX", -1, 1, 30, 3, Q("23.336055 mm")))
sketch1.addConstraint(Sketcher.Constraint("DistanceX", -1, 1, 31, 3, Q("28.336055 mm")))
sketch1.addConstraint(Sketcher.Constraint("DistanceY", -1, 1, 33, 3, Q("65.115234 mm")))
sketch1.addConstraint(Sketcher.Constraint("DistanceX", -1, 1, 46, 3, Q("44.321526 mm")))
sketch1.addConstraint(Sketcher.Constraint("DistanceY", -1, 1, 46, 3, Q("59.264813 mm")))
sketch1.addConstraint(Sketcher.Constraint("DistanceX", -1, 1, 51, 3, Q("63.539165 mm")))
sketch1.addConstraint(Sketcher.Constraint("DistanceY", -1, 1, 51, 3, Q("42.486213 mm")))
sketch1.addConstraint(Sketcher.Constraint("DistanceY", -1, 1, 60, 3, Q("73.045638 mm")))
sketch1.addConstraint(Sketcher.Constraint("DistanceY", -1, 1, 61, 3, Q("78.045638 mm")))
pad1 = doc.addObject("PartDesign::Pad", "Pad")
body.addObject(pad1)
pad1.Profile = sketch1
pad1.Length = 1.5

doc.recompute()
